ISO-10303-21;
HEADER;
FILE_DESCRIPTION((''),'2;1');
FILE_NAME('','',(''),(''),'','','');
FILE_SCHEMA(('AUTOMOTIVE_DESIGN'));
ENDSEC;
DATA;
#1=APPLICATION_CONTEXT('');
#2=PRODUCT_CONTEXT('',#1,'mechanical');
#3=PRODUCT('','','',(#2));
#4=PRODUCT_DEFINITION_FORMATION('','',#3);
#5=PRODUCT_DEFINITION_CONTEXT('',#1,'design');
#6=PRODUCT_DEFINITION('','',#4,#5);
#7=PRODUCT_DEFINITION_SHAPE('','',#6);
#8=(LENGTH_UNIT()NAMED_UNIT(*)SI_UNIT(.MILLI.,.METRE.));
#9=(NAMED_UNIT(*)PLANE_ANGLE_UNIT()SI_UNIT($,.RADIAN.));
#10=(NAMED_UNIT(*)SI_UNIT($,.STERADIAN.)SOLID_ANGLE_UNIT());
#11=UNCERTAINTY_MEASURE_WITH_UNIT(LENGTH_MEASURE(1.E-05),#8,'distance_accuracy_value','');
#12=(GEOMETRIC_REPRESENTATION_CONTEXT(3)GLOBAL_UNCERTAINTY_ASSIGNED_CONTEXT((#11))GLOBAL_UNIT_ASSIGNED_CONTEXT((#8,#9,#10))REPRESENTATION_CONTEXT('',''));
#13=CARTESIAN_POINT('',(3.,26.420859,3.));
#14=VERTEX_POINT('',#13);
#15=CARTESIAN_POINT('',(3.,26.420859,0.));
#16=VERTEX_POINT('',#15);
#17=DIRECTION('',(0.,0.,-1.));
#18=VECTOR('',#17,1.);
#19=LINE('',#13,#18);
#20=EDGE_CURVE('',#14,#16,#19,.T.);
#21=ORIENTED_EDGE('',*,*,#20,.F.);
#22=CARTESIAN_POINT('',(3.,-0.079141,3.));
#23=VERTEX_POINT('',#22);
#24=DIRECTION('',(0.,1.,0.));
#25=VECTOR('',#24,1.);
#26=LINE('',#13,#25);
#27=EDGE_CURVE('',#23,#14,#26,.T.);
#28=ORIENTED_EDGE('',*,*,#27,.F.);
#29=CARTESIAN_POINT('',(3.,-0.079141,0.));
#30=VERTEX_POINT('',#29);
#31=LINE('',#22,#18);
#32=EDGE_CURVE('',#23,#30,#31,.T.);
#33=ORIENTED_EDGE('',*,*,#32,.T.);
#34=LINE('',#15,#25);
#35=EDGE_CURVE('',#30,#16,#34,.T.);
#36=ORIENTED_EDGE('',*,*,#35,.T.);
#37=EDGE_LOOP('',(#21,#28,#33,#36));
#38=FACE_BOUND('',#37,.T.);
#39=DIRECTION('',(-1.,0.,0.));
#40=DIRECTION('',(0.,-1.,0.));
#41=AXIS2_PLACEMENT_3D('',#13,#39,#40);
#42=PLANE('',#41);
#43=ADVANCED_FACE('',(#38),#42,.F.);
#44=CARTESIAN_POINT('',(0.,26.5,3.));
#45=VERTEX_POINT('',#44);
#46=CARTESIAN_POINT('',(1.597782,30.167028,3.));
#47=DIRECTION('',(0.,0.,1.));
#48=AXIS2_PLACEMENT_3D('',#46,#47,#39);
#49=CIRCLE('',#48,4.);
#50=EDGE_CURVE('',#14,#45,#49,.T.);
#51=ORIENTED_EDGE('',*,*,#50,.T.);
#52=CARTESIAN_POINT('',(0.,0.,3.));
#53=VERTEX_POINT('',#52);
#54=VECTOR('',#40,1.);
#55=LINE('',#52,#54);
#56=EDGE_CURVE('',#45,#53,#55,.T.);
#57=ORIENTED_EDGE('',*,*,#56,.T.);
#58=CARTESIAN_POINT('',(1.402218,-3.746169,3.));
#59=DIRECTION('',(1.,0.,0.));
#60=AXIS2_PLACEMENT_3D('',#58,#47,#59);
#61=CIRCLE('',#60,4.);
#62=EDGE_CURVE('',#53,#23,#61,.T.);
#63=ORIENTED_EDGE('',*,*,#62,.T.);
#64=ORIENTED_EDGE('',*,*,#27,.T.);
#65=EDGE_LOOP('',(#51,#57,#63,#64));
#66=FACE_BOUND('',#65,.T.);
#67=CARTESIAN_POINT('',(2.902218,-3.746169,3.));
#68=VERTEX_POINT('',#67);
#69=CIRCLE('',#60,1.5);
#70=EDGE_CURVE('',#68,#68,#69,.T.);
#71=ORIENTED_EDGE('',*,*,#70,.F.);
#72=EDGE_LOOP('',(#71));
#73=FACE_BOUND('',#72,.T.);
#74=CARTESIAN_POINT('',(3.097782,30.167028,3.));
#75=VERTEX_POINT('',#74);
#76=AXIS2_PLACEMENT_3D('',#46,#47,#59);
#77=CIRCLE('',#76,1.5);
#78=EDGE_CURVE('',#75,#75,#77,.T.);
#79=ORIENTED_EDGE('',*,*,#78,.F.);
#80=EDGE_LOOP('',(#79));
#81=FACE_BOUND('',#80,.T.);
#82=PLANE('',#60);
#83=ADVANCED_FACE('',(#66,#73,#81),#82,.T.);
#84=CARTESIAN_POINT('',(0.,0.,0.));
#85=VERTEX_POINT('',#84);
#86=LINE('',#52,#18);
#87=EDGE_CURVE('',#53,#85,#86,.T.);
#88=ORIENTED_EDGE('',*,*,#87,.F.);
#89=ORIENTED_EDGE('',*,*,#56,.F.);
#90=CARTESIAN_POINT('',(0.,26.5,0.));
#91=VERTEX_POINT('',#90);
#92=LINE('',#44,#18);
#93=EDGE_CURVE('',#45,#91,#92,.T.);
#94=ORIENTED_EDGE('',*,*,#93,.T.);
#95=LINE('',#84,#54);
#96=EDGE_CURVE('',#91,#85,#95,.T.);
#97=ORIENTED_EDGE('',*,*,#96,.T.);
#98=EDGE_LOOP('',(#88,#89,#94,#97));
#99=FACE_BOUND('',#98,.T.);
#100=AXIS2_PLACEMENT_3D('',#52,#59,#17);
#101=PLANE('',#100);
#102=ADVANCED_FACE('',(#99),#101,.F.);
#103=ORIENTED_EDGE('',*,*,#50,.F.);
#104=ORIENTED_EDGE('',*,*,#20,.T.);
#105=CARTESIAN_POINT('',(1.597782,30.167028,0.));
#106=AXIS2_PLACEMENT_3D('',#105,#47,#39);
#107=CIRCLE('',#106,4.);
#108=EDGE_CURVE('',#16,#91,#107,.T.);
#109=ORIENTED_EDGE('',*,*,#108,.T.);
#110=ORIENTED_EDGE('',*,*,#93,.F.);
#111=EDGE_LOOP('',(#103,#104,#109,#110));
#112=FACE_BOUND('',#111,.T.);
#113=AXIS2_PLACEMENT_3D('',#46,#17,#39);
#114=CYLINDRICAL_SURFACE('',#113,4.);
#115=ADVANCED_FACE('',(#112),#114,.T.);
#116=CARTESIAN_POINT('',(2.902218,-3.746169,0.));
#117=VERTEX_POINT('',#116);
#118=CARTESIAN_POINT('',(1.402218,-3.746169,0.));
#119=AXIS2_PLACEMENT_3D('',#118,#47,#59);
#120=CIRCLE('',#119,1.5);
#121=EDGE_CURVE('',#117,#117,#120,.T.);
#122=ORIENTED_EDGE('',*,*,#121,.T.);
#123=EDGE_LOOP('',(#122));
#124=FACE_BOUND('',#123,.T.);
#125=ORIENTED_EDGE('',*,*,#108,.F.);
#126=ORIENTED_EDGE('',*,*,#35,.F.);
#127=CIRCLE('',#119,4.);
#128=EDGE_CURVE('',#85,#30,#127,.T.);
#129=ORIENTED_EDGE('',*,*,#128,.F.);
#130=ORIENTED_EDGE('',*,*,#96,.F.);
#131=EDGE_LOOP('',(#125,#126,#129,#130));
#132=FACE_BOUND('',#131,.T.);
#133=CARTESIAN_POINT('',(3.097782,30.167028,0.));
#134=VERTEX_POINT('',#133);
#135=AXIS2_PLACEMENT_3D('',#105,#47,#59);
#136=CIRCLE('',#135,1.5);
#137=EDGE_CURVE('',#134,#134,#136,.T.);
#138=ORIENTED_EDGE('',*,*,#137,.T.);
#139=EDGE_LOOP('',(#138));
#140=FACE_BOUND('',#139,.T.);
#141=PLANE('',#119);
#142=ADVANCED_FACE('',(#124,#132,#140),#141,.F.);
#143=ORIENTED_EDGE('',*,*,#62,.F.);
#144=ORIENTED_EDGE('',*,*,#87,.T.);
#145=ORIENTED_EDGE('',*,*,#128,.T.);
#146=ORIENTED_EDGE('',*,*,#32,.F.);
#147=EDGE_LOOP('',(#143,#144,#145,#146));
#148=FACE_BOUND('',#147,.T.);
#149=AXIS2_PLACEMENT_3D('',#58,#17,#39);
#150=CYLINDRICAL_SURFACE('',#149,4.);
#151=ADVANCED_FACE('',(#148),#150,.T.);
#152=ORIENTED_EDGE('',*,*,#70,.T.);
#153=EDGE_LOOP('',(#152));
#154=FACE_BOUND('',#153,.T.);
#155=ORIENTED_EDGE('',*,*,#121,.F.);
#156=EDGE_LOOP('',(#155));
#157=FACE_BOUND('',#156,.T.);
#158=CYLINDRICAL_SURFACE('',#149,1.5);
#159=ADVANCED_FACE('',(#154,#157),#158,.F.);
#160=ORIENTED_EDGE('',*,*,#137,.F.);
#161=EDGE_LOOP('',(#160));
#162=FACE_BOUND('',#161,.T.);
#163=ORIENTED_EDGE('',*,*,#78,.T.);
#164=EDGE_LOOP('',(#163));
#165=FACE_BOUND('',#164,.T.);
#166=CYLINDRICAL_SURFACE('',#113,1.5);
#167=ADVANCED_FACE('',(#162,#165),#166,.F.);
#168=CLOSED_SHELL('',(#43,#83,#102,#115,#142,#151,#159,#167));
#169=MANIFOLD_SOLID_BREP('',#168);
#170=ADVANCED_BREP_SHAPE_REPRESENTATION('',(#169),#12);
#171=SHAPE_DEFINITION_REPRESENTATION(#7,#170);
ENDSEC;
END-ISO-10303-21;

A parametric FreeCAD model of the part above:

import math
import FreeCAD as App
import Part
import Sketcher

doc = App.newDocument("Part")
body = doc.addObject("PartDesign::Body", "Body")

sketch1 = body.newObject("Sketcher::SketchObject", "Sketch")
sketch1.AttachmentSupport = (doc.getObject("XY_Plane"), [""])
sketch1.MapMode = "FlatFace"
sketch1.addGeometry([
    Part.LineSegment(App.Vector(0, 26.5, 0), App.Vector(0, 0, 0)),
    Part.ArcOfCircle(Part.Circle(App.Vector(1.4, -3.7, 0), App.Vector(0, 0, 1), 4), math.radians(111), math.radians(426)),
    Part.LineSegment(App.Vector(3, -0.1, 0), App.Vector(3, 26.4, 0)),
    Part.ArcOfCircle(Part.Circle(App.Vector(1.6, 30.2, 0), App.Vector(0, 0, 1), 4), math.radians(-69), math.radians(246)),
    Part.Circle(App.Vector(1.4, -3.7, 0), App.Vector(0, 0, 1), 1.5),
    Part.Circle(App.Vector(1.6, 30.2, 0), App.Vector(0, 0, 1), 1.5),
], False)
sketch1.addConstraint([
    Sketcher.Constraint("Coincident", 0, 2, 1, 1),
    Sketcher.Constraint("Coincident", 1, 2, 2, 1),
    Sketcher.Constraint("Coincident", 2, 2, 3, 1),
    Sketcher.Constraint("Coincident", 3, 2, 0, 1),
    Sketcher.Constraint("Vertical", 0),
    Sketcher.Constraint("Vertical", 2),
    Sketcher.Constraint("Coincident", 0, 2, -1, 1),
    Sketcher.Constraint("Coincident", 4, 3, 1, 3),
    Sketcher.Constraint("Coincident", 5, 3, 3, 3),
    Sketcher.Constraint("Equal", 1, 3),
    Sketcher.Constraint("Equal", 4, 5),
    Sketcher.Constraint("Equal", 0, 2),
    Sketcher.Constraint("Diameter", 4, 3.0),
    Sketcher.Constraint("Radius", 1, 4.0),
    Sketcher.Constraint("DistanceY", 0, 2, 0, 1, 26.5),
    Sketcher.Constraint("DistanceX", -1, 1, 1, 2, 3.0),
    Sketcher.Constraint("DistanceX", -1, 1, 1, 3, 1.402218),
])
pad1 = body.newObject("PartDesign::Pad", "Pad")
pad1.Profile = sketch1
pad1.Length = 3

doc.recompute()
